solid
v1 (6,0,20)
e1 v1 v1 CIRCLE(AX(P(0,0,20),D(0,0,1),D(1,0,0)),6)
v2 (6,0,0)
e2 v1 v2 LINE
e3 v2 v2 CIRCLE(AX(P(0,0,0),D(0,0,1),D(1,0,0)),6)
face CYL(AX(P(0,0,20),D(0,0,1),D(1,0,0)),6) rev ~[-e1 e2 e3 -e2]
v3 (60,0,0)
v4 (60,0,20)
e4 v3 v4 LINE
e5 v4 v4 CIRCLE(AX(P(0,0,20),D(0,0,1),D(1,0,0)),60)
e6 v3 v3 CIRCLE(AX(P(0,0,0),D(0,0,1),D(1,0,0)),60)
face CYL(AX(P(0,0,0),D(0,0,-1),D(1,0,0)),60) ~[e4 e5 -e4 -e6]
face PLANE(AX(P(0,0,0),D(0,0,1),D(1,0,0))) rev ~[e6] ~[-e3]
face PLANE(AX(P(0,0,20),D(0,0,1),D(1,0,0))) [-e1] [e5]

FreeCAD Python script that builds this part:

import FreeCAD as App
import Part
import Sketcher
Q = App.Units.Quantity

doc = App.newDocument("Part")
body = doc.addObject("PartDesign::Body", "Body")

sketch1 = body.newObject("Sketcher::SketchObject", "Sketch")
sketch1.AttachmentSupport = (doc.getObject("XY_Plane"), [""])
sketch1.MapMode = "FlatFace"
sketch1.addGeometry(Part.Circle(App.Vector(0, 0, 0), App.Vector(0, 0, 1), 60), False)
sketch1.addConstraint([
    Sketcher.Constraint("Coincident", 0, 3, -1, 1),
    Sketcher.Constraint("Diameter", 0, Q("120 mm")),
])
pad1 = body.newObject("PartDesign::Pad", "Pad")
pad1.Profile = sketch1
pad1.Length = 20

sketch2 = body.newObject("Sketcher::SketchObject", "Sketch001")
sketch2.AttachmentSupport = (doc.getObject("XY_Plane"), [""])
sketch2.MapMode = "FlatFace"
sketch2.AttachmentOffset = App.Placement(App.Vector(0, 0, 20), App.Rotation())
sketch2.addGeometry(Part.Circle(App.Vector(0, 0, 0), App.Vector(0, 0, 1), 6), False)
sketch2.addConstraint([
    Sketcher.Constraint("Coincident", 0, 3, -1, 1),
    Sketcher.Constraint("Diameter", 0, Q("12 mm")),
])
pocket1 = body.newObject("PartDesign::Pocket", "Pocket")
pocket1.Profile = sketch2
pocket1.Type = "ThroughAll"

doc.recompute()
